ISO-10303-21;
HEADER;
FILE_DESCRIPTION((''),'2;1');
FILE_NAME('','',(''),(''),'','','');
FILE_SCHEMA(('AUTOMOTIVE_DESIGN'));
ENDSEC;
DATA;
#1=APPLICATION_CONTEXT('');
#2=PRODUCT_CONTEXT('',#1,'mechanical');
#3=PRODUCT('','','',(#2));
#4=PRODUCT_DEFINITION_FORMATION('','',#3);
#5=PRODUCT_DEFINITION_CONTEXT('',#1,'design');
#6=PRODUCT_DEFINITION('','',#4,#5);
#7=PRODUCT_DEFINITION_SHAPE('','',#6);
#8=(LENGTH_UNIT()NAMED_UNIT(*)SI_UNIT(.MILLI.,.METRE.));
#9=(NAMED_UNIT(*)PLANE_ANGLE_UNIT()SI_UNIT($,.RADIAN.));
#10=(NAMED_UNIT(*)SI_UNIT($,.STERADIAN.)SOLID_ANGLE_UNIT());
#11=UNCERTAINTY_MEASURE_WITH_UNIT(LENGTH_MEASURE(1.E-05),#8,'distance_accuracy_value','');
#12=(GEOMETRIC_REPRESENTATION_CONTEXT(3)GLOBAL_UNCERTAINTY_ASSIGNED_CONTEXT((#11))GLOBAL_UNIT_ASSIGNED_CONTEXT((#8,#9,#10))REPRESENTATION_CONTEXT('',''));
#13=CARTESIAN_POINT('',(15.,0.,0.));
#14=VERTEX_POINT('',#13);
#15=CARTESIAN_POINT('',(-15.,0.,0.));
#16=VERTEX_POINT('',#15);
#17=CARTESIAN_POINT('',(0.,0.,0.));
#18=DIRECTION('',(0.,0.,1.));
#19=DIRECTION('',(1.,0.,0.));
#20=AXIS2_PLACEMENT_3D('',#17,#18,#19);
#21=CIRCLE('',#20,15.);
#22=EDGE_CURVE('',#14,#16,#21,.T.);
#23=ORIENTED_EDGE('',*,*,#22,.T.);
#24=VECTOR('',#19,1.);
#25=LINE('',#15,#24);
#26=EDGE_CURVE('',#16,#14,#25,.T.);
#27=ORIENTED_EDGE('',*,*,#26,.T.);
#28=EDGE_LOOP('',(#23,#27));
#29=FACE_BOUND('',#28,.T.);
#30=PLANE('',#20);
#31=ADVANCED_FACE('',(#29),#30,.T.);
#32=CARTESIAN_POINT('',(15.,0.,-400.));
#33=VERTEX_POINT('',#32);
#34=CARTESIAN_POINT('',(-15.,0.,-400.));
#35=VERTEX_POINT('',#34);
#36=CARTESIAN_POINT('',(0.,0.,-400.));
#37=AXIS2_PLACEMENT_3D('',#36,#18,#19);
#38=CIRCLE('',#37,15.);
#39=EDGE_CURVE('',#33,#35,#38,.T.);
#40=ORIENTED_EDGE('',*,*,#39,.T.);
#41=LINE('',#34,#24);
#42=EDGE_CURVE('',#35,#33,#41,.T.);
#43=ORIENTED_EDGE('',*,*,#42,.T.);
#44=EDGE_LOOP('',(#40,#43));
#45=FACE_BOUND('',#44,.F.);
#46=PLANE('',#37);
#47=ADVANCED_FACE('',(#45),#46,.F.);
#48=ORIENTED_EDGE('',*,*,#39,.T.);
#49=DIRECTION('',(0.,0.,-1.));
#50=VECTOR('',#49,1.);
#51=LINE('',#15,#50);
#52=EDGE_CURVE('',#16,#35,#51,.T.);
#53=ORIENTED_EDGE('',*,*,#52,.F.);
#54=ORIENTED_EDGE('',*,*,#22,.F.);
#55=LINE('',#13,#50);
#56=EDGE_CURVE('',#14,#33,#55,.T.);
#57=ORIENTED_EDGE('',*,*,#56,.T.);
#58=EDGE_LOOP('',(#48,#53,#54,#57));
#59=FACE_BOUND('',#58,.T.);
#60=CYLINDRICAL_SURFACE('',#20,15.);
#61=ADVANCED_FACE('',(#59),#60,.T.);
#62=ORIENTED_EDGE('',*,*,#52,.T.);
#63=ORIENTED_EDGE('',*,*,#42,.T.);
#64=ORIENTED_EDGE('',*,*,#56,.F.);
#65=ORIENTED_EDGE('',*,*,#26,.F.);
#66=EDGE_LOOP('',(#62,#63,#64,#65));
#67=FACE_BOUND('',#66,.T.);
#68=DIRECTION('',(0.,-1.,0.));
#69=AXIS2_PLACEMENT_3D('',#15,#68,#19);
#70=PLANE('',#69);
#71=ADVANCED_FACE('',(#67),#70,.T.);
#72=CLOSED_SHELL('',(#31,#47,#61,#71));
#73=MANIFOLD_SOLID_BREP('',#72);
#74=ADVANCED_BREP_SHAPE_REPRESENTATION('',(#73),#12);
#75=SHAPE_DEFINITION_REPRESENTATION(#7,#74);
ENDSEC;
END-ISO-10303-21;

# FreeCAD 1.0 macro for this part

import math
import FreeCAD as App
import Part
import Sketcher

V = App.Vector
Q = App.Units.Quantity

doc = App.newDocument("Part")
body = doc.addObject("PartDesign::Body", "Body")

sketch1 = body.newObject("Sketcher::SketchObject", "Sketch")
sketch1.AttachmentSupport = (doc.getObject("XY_Plane"), [""])
sketch1.MapMode = "FlatFace"
sketch1.addGeometry(Part.LineSegment(V(-15, 0, 0), V(15, 0, 0)), False)
sketch1.addGeometry(Part.ArcOfCircle(Part.Circle(V(0, 0, 0), V(0, 0, 1), 15), math.radians(0), math.radians(180)), False)
sketch1.addConstraint(Sketcher.Constraint("Coincident", 0, 1, 1, 2))
sketch1.addConstraint(Sketcher.Constraint("Coincident", 1, 1, 0, 2))
sketch1.addConstraint(Sketcher.Constraint("Horizontal", 0))
sketch1.addConstraint(Sketcher.Constraint("Coincident", 1, 3, -1, 1))
sketch1.addConstraint(Sketcher.Constraint("PointOnObject", 0, 1, -1))
sketch1.addConstraint(Sketcher.Constraint("Radius", 1, Q("15 mm")))
pad1 = body.newObject("PartDesign::Pad", "Pad")
pad1.Profile = sketch1
pad1.Length = 400
pad1.Reversed = True

doc.recompute()
